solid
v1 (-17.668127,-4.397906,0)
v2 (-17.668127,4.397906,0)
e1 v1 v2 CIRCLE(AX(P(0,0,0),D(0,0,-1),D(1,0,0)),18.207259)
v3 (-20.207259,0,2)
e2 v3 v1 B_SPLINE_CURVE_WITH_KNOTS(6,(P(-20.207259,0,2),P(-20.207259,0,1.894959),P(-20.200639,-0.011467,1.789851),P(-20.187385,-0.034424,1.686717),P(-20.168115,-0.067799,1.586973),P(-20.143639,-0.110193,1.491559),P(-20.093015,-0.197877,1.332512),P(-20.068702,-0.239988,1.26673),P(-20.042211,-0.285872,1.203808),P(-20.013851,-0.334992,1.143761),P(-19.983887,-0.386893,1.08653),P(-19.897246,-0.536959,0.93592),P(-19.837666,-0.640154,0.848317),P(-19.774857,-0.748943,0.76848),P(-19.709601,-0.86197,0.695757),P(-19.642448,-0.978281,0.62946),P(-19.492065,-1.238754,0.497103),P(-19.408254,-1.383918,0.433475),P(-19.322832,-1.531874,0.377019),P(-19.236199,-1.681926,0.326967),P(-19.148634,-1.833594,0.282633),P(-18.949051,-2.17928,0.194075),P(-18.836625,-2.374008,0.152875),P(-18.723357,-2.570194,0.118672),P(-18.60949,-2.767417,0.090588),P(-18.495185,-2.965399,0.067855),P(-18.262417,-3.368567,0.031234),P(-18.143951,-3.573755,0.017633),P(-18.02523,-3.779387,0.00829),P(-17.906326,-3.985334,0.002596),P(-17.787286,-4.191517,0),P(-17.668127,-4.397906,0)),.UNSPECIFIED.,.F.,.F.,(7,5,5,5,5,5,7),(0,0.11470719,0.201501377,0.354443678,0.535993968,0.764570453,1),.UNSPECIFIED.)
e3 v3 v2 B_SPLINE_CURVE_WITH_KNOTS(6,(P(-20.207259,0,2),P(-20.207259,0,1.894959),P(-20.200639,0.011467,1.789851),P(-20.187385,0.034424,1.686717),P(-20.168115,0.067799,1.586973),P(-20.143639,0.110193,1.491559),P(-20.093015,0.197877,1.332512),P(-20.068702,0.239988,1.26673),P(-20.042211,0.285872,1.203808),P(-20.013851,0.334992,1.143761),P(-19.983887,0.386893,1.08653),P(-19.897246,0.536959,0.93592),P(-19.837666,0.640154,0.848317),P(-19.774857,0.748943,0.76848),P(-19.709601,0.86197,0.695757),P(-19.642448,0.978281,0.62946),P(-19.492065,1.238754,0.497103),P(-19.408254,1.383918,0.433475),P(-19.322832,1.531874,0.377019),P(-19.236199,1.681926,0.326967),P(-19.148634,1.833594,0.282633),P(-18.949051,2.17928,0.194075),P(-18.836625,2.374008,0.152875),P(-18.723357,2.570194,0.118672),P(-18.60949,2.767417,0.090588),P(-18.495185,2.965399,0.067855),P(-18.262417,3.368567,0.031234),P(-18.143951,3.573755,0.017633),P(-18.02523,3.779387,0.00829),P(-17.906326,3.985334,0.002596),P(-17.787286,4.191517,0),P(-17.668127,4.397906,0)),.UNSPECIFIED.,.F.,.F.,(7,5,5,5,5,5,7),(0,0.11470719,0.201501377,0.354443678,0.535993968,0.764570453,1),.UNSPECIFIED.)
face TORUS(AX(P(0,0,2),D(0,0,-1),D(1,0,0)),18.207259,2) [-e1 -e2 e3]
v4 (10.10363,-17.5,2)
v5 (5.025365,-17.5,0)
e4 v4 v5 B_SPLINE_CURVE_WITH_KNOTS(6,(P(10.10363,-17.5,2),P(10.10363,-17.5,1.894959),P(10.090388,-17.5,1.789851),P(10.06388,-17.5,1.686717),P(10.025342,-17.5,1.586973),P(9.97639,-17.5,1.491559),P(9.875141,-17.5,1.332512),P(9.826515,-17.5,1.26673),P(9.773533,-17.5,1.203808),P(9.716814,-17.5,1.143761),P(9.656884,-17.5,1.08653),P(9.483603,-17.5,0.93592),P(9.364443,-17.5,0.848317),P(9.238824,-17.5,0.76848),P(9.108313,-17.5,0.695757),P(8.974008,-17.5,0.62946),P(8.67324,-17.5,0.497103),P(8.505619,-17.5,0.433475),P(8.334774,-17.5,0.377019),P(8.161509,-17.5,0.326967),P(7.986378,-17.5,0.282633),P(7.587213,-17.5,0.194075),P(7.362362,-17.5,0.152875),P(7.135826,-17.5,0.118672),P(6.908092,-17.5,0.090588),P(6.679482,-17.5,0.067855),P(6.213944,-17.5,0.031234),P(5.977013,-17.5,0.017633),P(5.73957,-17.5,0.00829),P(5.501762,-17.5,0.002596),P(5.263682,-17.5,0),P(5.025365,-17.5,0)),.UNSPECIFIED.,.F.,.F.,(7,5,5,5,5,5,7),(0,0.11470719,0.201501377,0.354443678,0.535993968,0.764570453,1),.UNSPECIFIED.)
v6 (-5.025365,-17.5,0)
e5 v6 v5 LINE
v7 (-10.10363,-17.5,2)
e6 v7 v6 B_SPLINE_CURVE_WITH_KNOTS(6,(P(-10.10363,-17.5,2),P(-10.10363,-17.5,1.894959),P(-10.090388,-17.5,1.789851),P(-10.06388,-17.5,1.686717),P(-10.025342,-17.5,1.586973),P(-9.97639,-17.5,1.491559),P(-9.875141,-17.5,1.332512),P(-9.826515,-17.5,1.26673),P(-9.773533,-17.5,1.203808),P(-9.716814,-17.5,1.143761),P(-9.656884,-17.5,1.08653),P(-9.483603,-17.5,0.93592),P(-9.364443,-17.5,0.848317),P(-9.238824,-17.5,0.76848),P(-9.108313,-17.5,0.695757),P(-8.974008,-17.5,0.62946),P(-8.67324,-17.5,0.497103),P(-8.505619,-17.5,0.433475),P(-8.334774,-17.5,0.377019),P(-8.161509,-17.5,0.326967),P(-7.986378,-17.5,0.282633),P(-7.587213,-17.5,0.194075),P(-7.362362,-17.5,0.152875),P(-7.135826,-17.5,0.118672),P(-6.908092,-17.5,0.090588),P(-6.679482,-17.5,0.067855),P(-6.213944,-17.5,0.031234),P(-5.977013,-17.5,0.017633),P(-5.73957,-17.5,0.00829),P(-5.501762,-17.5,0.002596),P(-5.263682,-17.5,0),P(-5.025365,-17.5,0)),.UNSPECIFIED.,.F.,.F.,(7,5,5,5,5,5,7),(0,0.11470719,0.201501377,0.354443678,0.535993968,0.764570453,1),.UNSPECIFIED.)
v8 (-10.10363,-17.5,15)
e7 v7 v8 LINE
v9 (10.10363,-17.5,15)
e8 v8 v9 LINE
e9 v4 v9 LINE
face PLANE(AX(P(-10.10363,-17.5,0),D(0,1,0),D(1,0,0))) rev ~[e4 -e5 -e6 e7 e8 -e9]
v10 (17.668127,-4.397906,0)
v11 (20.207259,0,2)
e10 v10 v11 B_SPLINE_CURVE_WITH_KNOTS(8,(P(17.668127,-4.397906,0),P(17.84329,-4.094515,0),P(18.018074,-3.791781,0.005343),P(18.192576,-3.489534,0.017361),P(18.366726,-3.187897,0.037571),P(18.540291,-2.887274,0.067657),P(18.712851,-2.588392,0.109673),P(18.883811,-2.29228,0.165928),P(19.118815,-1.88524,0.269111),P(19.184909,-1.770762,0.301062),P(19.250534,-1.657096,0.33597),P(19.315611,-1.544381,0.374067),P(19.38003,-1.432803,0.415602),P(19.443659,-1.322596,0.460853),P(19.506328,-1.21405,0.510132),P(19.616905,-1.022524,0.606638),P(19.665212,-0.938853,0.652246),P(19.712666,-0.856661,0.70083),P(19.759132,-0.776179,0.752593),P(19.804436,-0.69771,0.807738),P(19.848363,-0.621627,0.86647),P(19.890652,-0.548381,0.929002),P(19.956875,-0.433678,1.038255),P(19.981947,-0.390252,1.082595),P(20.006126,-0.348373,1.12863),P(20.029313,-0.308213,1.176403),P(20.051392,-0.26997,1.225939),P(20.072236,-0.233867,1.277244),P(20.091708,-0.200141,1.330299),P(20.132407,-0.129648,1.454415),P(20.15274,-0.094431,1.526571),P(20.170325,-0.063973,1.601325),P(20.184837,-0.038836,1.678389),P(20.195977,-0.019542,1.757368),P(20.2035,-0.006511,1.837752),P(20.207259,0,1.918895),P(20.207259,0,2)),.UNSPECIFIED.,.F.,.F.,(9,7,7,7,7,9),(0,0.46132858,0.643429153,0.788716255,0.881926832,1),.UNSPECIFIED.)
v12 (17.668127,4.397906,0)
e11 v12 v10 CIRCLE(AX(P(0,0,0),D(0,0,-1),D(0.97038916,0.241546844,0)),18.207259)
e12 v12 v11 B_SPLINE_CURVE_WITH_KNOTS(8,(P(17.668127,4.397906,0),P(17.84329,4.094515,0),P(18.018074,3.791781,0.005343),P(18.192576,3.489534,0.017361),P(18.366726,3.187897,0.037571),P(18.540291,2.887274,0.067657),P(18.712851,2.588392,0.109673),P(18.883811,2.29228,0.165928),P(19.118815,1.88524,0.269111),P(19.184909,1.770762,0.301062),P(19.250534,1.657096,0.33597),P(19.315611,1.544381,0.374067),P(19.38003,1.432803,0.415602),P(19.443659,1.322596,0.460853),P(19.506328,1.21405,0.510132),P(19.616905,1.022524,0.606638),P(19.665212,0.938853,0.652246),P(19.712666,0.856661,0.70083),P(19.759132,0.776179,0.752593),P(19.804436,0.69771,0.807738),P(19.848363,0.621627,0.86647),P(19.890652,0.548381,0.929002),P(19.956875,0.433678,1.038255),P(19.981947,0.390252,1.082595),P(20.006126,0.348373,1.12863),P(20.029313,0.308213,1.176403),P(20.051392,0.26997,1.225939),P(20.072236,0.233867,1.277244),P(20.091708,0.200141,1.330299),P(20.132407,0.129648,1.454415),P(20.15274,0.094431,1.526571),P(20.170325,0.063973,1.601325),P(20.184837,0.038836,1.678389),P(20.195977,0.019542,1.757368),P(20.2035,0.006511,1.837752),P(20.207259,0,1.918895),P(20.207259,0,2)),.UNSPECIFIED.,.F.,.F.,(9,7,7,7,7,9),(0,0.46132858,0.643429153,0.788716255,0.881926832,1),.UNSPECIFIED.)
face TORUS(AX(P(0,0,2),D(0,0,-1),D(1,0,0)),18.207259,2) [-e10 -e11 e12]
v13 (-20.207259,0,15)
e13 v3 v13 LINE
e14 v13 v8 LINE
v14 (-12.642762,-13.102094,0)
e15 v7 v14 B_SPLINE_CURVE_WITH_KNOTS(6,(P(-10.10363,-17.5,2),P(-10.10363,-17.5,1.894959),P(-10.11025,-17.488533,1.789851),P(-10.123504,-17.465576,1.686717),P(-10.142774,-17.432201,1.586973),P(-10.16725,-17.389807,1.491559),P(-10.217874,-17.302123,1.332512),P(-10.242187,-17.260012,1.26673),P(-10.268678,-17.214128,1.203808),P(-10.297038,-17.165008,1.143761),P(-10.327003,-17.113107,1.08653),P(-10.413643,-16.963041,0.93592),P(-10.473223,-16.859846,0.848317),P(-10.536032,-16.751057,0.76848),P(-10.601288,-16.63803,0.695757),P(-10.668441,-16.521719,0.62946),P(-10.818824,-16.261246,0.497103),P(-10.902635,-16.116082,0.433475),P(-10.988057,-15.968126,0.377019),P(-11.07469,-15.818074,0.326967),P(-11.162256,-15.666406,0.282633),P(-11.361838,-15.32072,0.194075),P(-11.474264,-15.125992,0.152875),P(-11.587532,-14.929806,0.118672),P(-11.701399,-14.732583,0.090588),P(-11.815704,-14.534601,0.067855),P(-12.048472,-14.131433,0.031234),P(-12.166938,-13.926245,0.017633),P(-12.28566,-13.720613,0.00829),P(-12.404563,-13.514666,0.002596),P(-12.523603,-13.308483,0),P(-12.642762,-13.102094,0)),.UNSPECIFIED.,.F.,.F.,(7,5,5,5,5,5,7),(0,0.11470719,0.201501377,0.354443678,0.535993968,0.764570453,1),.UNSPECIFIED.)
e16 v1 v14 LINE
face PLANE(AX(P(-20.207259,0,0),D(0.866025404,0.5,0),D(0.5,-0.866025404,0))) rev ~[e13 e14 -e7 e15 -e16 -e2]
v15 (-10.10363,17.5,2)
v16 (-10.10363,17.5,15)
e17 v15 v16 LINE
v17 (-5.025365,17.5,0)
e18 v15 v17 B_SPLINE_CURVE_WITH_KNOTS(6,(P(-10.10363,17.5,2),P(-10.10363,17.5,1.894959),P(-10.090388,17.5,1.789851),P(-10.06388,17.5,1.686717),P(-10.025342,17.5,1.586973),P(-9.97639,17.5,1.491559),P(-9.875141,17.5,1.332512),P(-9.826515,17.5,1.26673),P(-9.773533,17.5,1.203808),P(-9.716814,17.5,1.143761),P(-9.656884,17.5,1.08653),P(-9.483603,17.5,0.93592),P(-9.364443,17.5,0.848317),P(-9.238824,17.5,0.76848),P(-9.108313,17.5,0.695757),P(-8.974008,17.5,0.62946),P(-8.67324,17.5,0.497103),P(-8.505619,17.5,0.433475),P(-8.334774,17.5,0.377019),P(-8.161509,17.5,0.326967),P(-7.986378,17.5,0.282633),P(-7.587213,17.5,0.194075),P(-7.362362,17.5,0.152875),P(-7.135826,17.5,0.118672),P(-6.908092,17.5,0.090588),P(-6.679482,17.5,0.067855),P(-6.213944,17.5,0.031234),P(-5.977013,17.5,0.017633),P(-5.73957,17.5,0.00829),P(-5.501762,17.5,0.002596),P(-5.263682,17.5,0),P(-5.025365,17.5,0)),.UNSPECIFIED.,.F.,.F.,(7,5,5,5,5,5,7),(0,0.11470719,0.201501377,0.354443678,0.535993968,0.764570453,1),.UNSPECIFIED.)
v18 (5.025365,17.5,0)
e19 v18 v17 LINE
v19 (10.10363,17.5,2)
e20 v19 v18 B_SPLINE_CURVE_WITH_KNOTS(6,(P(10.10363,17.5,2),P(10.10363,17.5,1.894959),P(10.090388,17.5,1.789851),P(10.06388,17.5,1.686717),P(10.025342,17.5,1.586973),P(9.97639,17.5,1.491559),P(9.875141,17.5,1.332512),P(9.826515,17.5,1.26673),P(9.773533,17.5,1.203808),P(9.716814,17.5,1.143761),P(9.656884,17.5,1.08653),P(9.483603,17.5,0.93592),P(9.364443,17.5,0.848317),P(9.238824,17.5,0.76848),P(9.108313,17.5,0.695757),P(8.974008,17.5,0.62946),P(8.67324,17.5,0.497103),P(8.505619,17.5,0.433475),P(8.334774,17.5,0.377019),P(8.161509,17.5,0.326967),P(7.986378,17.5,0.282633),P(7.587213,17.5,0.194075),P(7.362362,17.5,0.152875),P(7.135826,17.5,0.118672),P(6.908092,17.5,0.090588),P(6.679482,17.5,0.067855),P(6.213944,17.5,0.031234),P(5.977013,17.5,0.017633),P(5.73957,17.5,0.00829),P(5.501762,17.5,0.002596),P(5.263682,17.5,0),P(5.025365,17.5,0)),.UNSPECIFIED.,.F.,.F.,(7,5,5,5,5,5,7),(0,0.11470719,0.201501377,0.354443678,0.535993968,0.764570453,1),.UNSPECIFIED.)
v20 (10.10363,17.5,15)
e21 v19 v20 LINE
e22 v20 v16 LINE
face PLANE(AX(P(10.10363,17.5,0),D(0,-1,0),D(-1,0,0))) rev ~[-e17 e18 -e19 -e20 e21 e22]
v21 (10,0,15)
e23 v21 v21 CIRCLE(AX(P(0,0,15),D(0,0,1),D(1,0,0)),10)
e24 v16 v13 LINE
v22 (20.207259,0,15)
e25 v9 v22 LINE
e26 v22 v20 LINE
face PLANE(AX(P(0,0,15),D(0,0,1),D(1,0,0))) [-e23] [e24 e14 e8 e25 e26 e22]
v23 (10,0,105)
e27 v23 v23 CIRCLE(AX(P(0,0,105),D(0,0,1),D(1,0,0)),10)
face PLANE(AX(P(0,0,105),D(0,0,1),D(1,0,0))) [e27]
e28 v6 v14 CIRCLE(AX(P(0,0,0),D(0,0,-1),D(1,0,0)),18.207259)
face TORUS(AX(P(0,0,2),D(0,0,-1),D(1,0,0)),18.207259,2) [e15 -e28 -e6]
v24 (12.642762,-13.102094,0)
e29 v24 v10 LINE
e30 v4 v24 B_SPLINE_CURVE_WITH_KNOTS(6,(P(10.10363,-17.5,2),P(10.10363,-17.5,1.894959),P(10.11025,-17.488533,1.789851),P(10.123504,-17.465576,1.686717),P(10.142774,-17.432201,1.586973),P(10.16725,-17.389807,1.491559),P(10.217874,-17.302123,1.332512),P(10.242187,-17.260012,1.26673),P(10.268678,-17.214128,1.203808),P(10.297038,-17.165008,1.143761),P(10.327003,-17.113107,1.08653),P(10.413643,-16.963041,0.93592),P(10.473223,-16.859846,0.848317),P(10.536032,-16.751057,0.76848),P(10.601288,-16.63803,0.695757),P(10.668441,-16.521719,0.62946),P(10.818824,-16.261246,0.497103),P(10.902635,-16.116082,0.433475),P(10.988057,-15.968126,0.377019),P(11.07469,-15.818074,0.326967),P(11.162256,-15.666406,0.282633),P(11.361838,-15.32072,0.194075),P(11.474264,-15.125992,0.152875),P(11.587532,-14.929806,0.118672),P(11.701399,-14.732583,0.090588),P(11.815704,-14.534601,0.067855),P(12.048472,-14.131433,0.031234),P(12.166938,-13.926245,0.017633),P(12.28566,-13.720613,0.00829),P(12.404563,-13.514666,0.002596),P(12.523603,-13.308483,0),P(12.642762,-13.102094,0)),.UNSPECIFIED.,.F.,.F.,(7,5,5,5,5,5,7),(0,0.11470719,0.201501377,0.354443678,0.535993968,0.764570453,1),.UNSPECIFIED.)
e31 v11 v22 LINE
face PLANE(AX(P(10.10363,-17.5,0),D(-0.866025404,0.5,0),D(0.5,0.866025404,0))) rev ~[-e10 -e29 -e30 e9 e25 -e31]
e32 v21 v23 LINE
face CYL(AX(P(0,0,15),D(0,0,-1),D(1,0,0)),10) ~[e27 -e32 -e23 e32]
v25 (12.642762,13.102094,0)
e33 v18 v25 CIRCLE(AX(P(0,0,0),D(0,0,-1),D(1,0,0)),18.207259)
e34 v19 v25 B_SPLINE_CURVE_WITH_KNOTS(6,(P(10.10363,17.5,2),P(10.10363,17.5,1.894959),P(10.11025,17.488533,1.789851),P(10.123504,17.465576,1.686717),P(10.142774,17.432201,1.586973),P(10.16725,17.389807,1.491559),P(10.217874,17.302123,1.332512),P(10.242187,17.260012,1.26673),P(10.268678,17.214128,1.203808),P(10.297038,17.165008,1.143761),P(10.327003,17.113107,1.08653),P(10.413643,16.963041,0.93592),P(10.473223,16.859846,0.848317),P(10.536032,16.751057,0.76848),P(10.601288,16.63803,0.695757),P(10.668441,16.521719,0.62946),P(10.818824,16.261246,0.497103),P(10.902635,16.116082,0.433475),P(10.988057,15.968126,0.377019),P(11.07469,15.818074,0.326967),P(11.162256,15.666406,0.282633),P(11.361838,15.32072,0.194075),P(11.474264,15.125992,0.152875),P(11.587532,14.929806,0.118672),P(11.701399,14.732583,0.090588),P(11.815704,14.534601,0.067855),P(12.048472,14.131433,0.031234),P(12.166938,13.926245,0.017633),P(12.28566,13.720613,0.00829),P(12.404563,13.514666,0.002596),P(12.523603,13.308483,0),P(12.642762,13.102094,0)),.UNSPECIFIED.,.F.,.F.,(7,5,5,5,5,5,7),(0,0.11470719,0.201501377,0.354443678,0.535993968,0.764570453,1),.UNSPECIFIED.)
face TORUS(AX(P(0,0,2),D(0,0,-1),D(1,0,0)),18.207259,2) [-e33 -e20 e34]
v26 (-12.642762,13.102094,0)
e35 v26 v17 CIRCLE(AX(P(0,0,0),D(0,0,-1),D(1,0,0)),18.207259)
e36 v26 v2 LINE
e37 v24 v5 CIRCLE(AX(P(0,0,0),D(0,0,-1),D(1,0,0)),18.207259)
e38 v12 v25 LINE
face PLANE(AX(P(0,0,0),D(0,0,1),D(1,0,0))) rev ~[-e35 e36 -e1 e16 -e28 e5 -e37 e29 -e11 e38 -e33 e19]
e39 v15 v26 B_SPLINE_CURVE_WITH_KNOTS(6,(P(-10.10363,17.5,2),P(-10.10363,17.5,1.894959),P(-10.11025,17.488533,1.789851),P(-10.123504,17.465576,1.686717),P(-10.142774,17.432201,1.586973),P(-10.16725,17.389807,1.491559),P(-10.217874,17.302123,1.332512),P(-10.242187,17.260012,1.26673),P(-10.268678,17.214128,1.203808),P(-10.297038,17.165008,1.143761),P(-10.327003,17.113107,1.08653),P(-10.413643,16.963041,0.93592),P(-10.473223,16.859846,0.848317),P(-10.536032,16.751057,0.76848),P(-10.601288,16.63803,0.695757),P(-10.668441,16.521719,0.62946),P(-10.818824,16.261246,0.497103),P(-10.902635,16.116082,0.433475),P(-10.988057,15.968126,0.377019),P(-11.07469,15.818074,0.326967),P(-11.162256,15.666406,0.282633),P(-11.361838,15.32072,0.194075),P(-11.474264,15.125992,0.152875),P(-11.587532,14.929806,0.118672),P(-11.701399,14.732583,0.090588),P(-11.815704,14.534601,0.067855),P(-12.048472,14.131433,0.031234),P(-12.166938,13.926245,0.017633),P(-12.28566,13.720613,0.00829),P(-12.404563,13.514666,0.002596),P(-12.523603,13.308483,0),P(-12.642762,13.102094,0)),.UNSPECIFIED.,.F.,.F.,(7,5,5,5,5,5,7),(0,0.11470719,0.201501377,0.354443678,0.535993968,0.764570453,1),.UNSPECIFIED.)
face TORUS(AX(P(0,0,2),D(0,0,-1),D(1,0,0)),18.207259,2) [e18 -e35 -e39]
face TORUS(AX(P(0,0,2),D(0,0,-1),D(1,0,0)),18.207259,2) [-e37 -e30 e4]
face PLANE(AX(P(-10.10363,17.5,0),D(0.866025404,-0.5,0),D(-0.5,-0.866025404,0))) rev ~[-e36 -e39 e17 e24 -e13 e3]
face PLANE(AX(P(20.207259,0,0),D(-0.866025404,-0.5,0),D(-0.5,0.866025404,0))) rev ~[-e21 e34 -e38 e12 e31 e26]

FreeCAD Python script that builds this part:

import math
import FreeCAD as App
import Part
import Sketcher
Q = App.Units.Quantity

doc = App.newDocument("Part")
body = doc.addObject("PartDesign::Body", "Body")

# Sketch on XY plane
sketch1 = body.newObject("Sketcher::SketchObject", "Sketch")
sketch1.AttachmentSupport = (doc.getObject("XY_Plane"), [""])
sketch1.MapMode = "FlatFace"
sketch1.addGeometry(Part.LineSegment(App.Vector(-20, 0, 0), App.Vector(-10, -18, 0)), False)
sketch1.addGeometry(Part.LineSegment(App.Vector(-10, -18, 0), App.Vector(10, -18, 0)), False)
sketch1.addGeometry(Part.LineSegment(App.Vector(10, -18, 0), App.Vector(20, 0, 0)), False)
sketch1.addGeometry(Part.LineSegment(App.Vector(20, 0, 0), App.Vector(10, 18, 0)), False)
sketch1.addGeometry(Part.LineSegment(App.Vector(10, 18, 0), App.Vector(-10, 18, 0)), False)
sketch1.addGeometry(Part.LineSegment(App.Vector(-10, 18, 0), App.Vector(-20, 0, 0)), False)
sketch1.addConstraint(Sketcher.Constraint("Coincident", 0, 2, 1, 1))
sketch1.addConstraint(Sketcher.Constraint("Coincident", 1, 2, 2, 1))
sketch1.addConstraint(Sketcher.Constraint("Coincident", 2, 2, 3, 1))
sketch1.addConstraint(Sketcher.Constraint("Coincident", 3, 2, 4, 1))
sketch1.addConstraint(Sketcher.Constraint("Coincident", 4, 2, 5, 1))
sketch1.addConstraint(Sketcher.Constraint("Coincident", 5, 2, 0, 1))
sketch1.addConstraint(Sketcher.Constraint("Horizontal", 1))
sketch1.addConstraint(Sketcher.Constraint("Horizontal", 4))
sketch1.addConstraint(Sketcher.Constraint("Symmetric", 0, 2, 3, 2, -1, 1))
sketch1.addConstraint(Sketcher.Constraint("Symmetric", 2, 2, 5, 2, -1, 1))
sketch1.addConstraint(Sketcher.Constraint("PointOnObject", 2, 2, -1))
sketch1.addConstraint(Sketcher.Constraint("Parallel", 2, 5))
sketch1.addConstraint(Sketcher.Constraint("Vertical", 1, 2, 3, 2))
sketch1.addConstraint(Sketcher.Constraint("Angle", 0, Q("-60 deg")))
sketch1.addConstraint(Sketcher.Constraint("DistanceY", 1, 2, 3, 2, Q("35 mm")))
sketch1.addConstraint(Sketcher.Constraint("DistanceX", 1, 1, 1, 2, Q("20.207259 mm")))
pad1 = body.newObject("PartDesign::Pad", "Pad")
pad1.Profile = sketch1
pad1.Length = 15

# Sketch on XY plane
sketch2 = body.newObject("Sketcher::SketchObject", "Sketch001")
sketch2.AttachmentSupport = (doc.getObject("XY_Plane"), [""])
sketch2.MapMode = "FlatFace"
sketch2.AttachmentOffset = App.Placement(App.Vector(0, 0, 15), App.Rotation())
sketch2.addGeometry(Part.Circle(App.Vector(0, 0, 0), App.Vector(0, 0, 1), 10), False)
sketch2.addConstraint(Sketcher.Constraint("Coincident", 0, 3, -1, 1))
sketch2.addConstraint(Sketcher.Constraint("Diameter", 0, Q("20 mm")))
pad2 = body.newObject("PartDesign::Pad", "Pad001")
pad2.Profile = sketch2
pad2.Length = 90

# Sketch on XZ plane
sketch3 = body.newObject("Sketcher::SketchObject", "Sketch002")
sketch3.AttachmentSupport = (doc.getObject("XZ_Plane"), [""])
sketch3.MapMode = "FlatFace"
sketch3.addGeometry(Part.LineSegment(App.Vector(20.2, 0, 0), App.Vector(18.2, 0, 0)), False)
sketch3.addGeometry(Part.ArcOfCircle(Part.Circle(App.Vector(18.2, 2, 0), App.Vector(0, 0, 1), 2), math.radians(-90), math.radians(0)), False)
sketch3.addGeometry(Part.LineSegment(App.Vector(20.2, 2, 0), App.Vector(20.2, 0, 0)), False)
sketch3.addConstraint(Sketcher.Constraint("Tangent", 0, 2, 1, 1))
sketch3.addConstraint(Sketcher.Constraint("Tangent", 1, 2, 2, 1))
sketch3.addConstraint(Sketcher.Constraint("Coincident", 2, 2, 0, 1))
sketch3.addConstraint(Sketcher.Constraint("Horizontal", 0))
sketch3.addConstraint(Sketcher.Constraint("Vertical", 2))
sketch3.addConstraint(Sketcher.Constraint("PointOnObject", 0, 2, -1))
sketch3.addConstraint(Sketcher.Constraint("Radius", 1, Q("2 mm")))
sketch3.addConstraint(Sketcher.Constraint("DistanceX", -1, 1, 1, 3, Q("18.207259 mm")))
groove = body.newObject("PartDesign::Groove", "Groove")
groove.Profile = sketch3
groove.ReferenceAxis = (sketch3, ["V_Axis"])
groove.Angle = 360

doc.recompute()
